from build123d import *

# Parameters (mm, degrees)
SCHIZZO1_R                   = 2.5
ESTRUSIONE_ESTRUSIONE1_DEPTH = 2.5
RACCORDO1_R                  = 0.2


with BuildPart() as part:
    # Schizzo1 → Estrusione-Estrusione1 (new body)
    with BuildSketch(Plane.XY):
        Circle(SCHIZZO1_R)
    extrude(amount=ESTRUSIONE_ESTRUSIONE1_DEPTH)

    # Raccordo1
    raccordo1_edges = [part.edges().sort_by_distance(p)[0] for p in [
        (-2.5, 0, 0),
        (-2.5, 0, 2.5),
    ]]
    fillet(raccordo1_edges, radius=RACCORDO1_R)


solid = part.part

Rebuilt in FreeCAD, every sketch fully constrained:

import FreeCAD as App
import Part
import Sketcher


def edges_at(feature, points):
    """Names of the edges that pass closest to the given points."""
    edges = feature.Shape.Edges
    near = lambda p: min(range(len(edges)), key=lambda i: edges[i].distToShape(Part.Vertex(*p))[0])
    return sorted({f"Edge{near(p) + 1}" for p in points})

doc = App.newDocument("Part")
params = doc.addObject("Spreadsheet::Sheet", "Params")
for row, (alias, value) in enumerate([
    ("sketch1_diameter", "5 mm"),
    ("pad1_length", "2.5 mm"),
    ("fillet_radius", "0.2 mm"),
], start=1):
    params.set(f"A{row}", alias)
    params.set(f"B{row}", "=" + value)
    params.setAlias(f"B{row}", alias)

body = doc.addObject("PartDesign::Body", "Body")

# Sketch on XY plane
sketch1 = body.newObject("Sketcher::SketchObject", "Sketch")
sketch1.AttachmentSupport = (doc.getObject("XY_Plane"), [""])
sketch1.MapMode = "FlatFace"
sketch1.addGeometry(Part.Circle(App.Vector(0, 0, 0), App.Vector(0, 0, 1), 2.5), False)
sketch1.addConstraint(Sketcher.Constraint("Coincident", 0, 3, -1, 1))
sketch1.addConstraint(Sketcher.Constraint("Diameter", 0, 5.0))
sketch1.setExpression("Constraints[1]", "Params.sketch1_diameter")
pad1 = body.newObject("PartDesign::Pad", "Pad")
pad1.Profile = sketch1
pad1.setExpression("Length", "Params.pad1_length")
doc.recompute()

fillet = body.newObject("PartDesign::Fillet", "Fillet")
fillet.Base = (pad1, edges_at(pad1, [(-2.5, 0, 0), (-2.5, 0, 2.5)]))
fillet.setExpression("Radius", "Params.fillet_radius")

doc.recompute()
